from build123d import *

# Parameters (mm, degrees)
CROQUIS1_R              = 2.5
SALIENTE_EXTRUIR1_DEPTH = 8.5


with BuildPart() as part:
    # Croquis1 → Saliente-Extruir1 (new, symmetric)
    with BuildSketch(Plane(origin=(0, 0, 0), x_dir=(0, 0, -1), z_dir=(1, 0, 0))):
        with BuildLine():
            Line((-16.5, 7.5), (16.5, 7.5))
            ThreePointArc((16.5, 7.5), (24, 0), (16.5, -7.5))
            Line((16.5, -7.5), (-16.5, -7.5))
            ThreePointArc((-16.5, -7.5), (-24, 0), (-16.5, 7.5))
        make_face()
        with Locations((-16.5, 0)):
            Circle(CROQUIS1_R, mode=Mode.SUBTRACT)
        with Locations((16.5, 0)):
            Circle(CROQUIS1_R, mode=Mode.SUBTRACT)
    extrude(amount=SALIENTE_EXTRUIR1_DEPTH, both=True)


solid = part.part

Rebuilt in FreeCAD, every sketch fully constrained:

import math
import FreeCAD as App
import Part
import Sketcher
Q = App.Units.Quantity

doc = App.newDocument("Part")
body = doc.addObject("PartDesign::Body", "Body")

# Sketch on YZ plane
sketch1 = body.newObject("Sketcher::SketchObject", "Sketch")
sketch1.AttachmentSupport = (doc.getObject("YZ_Plane"), [""])
sketch1.MapMode = "FlatFace"
sketch1.addGeometry(Part.LineSegment(App.Vector(7.5, -16.5, 0), App.Vector(7.5, 16.5, 0)), False)
sketch1.addGeometry(Part.ArcOfCircle(Part.Circle(App.Vector(0, 16.5, 0), App.Vector(0, 0, 1), 7.5), math.radians(0), math.radians(180)), False)
sketch1.addGeometry(Part.LineSegment(App.Vector(-7.5, 16.5, 0), App.Vector(-7.5, -16.5, 0)), False)
sketch1.addGeometry(Part.ArcOfCircle(Part.Circle(App.Vector(0, -16.5, 0), App.Vector(0, 0, 1), 7.5), math.radians(180), math.radians(360)), False)
sketch1.addGeometry(Part.Circle(App.Vector(0, -16.5, 0), App.Vector(0, 0, 1), 2.5), False)
sketch1.addGeometry(Part.Circle(App.Vector(0, 16.5, 0), App.Vector(0, 0, 1), 2.5), False)
sketch1.addConstraint(Sketcher.Constraint("Tangent", 0, 2, 1, 1))
sketch1.addConstraint(Sketcher.Constraint("Tangent", 1, 2, 2, 1))
sketch1.addConstraint(Sketcher.Constraint("Tangent", 2, 2, 3, 1))
sketch1.addConstraint(Sketcher.Constraint("Tangent", 3, 2, 0, 1))
sketch1.addConstraint(Sketcher.Constraint("Vertical", 0))
sketch1.addConstraint(Sketcher.Constraint("Vertical", 2))
sketch1.addConstraint(Sketcher.Constraint("Coincident", 4, 3, 3, 3))
sketch1.addConstraint(Sketcher.Constraint("Coincident", 5, 3, 1, 3))
sketch1.addConstraint(Sketcher.Constraint("Equal", 4, 5))
sketch1.addConstraint(Sketcher.Constraint("Symmetric", 1, 3, 3, 3, -1, 1))
sketch1.addConstraint(Sketcher.Constraint("Diameter", 4, Q("5 mm")))
sketch1.addConstraint(Sketcher.Constraint("Radius", 1, Q("7.5 mm")))
sketch1.addConstraint(Sketcher.Constraint("DistanceY", 0, 1, 0, 2, Q("33 mm")))
pad1 = body.newObject("PartDesign::Pad", "Pad")
pad1.Profile = sketch1
pad1.Length = 17
pad1.Midplane = True

doc.recompute()
